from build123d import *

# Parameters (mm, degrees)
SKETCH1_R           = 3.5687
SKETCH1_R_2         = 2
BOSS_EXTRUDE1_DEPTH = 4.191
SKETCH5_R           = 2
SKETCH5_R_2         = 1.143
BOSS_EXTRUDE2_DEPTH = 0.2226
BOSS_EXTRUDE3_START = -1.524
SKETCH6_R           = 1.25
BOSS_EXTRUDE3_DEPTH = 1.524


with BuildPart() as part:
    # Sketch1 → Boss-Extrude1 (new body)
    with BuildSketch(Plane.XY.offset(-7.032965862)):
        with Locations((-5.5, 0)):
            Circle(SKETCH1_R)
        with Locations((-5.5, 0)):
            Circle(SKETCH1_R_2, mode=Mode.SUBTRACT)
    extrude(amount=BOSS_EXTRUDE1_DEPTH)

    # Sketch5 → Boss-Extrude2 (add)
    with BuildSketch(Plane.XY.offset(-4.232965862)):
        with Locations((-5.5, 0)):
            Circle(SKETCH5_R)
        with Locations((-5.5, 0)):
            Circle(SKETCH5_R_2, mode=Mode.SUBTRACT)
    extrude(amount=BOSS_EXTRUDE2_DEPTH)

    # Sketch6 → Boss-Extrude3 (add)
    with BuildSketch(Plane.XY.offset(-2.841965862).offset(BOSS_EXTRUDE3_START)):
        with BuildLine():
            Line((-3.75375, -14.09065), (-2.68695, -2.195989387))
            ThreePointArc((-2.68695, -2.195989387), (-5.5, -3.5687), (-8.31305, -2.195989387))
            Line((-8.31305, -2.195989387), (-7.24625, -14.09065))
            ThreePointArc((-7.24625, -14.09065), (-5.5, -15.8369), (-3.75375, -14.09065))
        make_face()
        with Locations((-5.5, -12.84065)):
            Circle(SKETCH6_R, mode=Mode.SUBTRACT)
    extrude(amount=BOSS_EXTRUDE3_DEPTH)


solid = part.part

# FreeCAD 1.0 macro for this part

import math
import FreeCAD as App
import Part
import Sketcher
Q = App.Units.Quantity

doc = App.newDocument("Part")
body = doc.addObject("PartDesign::Body", "Body")

# Sketch on XY plane
sketch1 = body.newObject("Sketcher::SketchObject", "Sketch")
sketch1.AttachmentSupport = (doc.getObject("XY_Plane"), [""])
sketch1.MapMode = "FlatFace"
sketch1.AttachmentOffset = App.Placement(App.Vector(0, 0, -7.032966), App.Rotation())
sketch1.addGeometry(Part.Circle(App.Vector(-5.5, 0, 0), App.Vector(0, 0, 1), 3.5687), False)
sketch1.addGeometry(Part.Circle(App.Vector(-5.5, 0, 0), App.Vector(0, 0, 1), 2), False)
sketch1.addConstraint(Sketcher.Constraint("Coincident", 1, 3, 0, 3))
sketch1.addConstraint(Sketcher.Constraint("PointOnObject", 0, 3, -1))
sketch1.addConstraint(Sketcher.Constraint("Diameter", 0, Q("0.281 in")))
sketch1.addConstraint(Sketcher.Constraint("Diameter", 1, 4.0))
sketch1.addConstraint(Sketcher.Constraint("DistanceX", 0, 3, -1, 1, 5.5))
pad1 = body.newObject("PartDesign::Pad", "Pad")
pad1.Profile = sketch1
pad1.Length = Q("0.165 in")

# Sketch on XY plane
sketch2 = body.newObject("Sketcher::SketchObject", "Sketch001")
sketch2.AttachmentSupport = (doc.getObject("XY_Plane"), [""])
sketch2.MapMode = "FlatFace"
sketch2.AttachmentOffset = App.Placement(App.Vector(0, 0, -4.232966), App.Rotation())
sketch2.addGeometry(Part.Circle(App.Vector(-5.5, 0, 0), App.Vector(0, 0, 1), 2), False)
sketch2.addGeometry(Part.Circle(App.Vector(-5.5, 0, 0), App.Vector(0, 0, 1), 1.143), False)
sketch2.addConstraint(Sketcher.Constraint("Coincident", 1, 3, 0, 3))
sketch2.addConstraint(Sketcher.Constraint("PointOnObject", 0, 3, -1))
sketch2.addConstraint(Sketcher.Constraint("Diameter", 1, Q("0.09 in")))
sketch2.addConstraint(Sketcher.Constraint("Diameter", 0, 4.0))
sketch2.addConstraint(Sketcher.Constraint("DistanceX", 0, 3, -1, 1, 5.5))
pad2 = body.newObject("PartDesign::Pad", "Pad001")
pad2.Profile = sketch2
pad2.Length = 0.2226

# Sketch on XY plane
sketch3 = body.newObject("Sketcher::SketchObject", "Sketch002")
sketch3.AttachmentSupport = (doc.getObject("XY_Plane"), [""])
sketch3.MapMode = "FlatFace"
sketch3.AttachmentOffset = App.Placement(App.Vector(0, 0, -4.365966), App.Rotation())
sketch3.addGeometry(Part.LineSegment(App.Vector(-3.75375, -14.09065, 0), App.Vector(-2.68695, -2.195989, 0)), False)
sketch3.addGeometry(Part.ArcOfCircle(Part.Circle(App.Vector(-5.5, 0, 0), App.Vector(0, 0, 1), 3.5687), math.radians(-142.022851), math.radians(-37.977149)), False)
sketch3.addGeometry(Part.LineSegment(App.Vector(-8.31305, -2.195989, 0), App.Vector(-7.24625, -14.09065, 0)), False)
sketch3.addGeometry(Part.ArcOfCircle(Part.Circle(App.Vector(-5.5, -14.09065, 0), App.Vector(0, 0, 1), 1.74625), math.radians(180), math.radians(360)), False)
sketch3.addGeometry(Part.Circle(App.Vector(-5.5, -12.84065, 0), App.Vector(0, 0, 1), 1.25), False)
sketch3.addConstraint(Sketcher.Constraint("Coincident", 0, 2, 1, 2))
sketch3.addConstraint(Sketcher.Constraint("Coincident", 1, 1, 2, 1))
sketch3.addConstraint(Sketcher.Constraint("Coincident", 2, 2, 3, 1))
sketch3.addConstraint(Sketcher.Constraint("Coincident", 3, 2, 0, 1))
sketch3.addConstraint(Sketcher.Constraint("PointOnObject", 1, 3, -1))
sketch3.addConstraint(Sketcher.Constraint("Horizontal", 0, 2, 1, 1))
sketch3.addConstraint(Sketcher.Constraint("Horizontal", 3, 3, 2, 2))
sketch3.addConstraint(Sketcher.Constraint("Horizontal", 2, 2, 3, 2))
sketch3.addConstraint(Sketcher.Constraint("Vertical", 1, 3, 3, 3))
sketch3.addConstraint(Sketcher.Constraint("Vertical", 3, 3, 4, 3))
sketch3.addConstraint(Sketcher.Constraint("Radius", 1, Q("0.1405 in")))
sketch3.addConstraint(Sketcher.Constraint("Diameter", 4, 2.5))
sketch3.addConstraint(Sketcher.Constraint("Radius", 3, 1.74625))
sketch3.addConstraint(Sketcher.Constraint("DistanceX", 1, 1, 2, 2, Q("0.042 in")))
sketch3.addConstraint(Sketcher.Constraint("DistanceX", 1, 3, -1, 1, 5.5))
sketch3.addConstraint(Sketcher.Constraint("DistanceY", 3, 3, 4, 3, 1.25))
sketch3.addConstraint(Sketcher.Constraint("DistanceY", 3, 3, -1, 1, 14.09065))
pad3 = body.newObject("PartDesign::Pad", "Pad002")
pad3.Profile = sketch3
pad3.Length = Q("0.06 in")

doc.recompute()
